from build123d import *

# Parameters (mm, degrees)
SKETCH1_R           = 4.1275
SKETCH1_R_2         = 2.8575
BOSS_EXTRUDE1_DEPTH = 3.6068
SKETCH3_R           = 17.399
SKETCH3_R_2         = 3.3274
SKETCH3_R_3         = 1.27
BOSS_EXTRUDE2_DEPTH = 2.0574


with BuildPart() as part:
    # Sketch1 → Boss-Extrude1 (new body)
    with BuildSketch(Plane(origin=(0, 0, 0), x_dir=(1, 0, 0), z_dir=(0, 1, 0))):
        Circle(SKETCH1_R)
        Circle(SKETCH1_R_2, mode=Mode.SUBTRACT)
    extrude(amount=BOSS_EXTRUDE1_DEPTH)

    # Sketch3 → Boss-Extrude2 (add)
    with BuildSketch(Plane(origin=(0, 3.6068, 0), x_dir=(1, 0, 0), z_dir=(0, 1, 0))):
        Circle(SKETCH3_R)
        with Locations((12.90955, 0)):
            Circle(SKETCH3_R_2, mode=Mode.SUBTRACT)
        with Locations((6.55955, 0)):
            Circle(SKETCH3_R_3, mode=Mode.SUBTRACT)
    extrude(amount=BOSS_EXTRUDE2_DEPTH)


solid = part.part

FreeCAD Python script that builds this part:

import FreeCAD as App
import Part
import Sketcher
from FreeCAD import Vector
Q = App.Units.Quantity

doc = App.newDocument("Part")
params = doc.addObject("Spreadsheet::Sheet", "Params")
for row, (alias, value) in enumerate([
    ("sketch1_diameter", "0.325 in"),
    ("sketch1_diameter2", "0.225 in"),
    ("pad1_length", "0.142 in"),
    ("sketch2_diameter", "0.1 in"),
    ("sketch2_diameter2", "1.37 in"),
    ("sketch2_diameter3", "0.262 in"),
    ("pad2_length", "0.081 in"),
], start=1):
    params.set(f"A{row}", alias)
    params.set(f"B{row}", "=" + value)
    params.setAlias(f"B{row}", alias)

body = doc.addObject("PartDesign::Body", "Body")

# Sketch on XZ plane
sketch1 = body.newObject("Sketcher::SketchObject", "Sketch")
sketch1.AttachmentSupport = (doc.getObject("XZ_Plane"), [""])
sketch1.MapMode = "FlatFace"
sketch1.addGeometry([
    Part.Circle(Vector(0, 0, 0), Vector(0, 0, 1), 4.1),
    Part.Circle(Vector(0, 0, 0), Vector(0, 0, 1), 2.9),
], False)
sketch1.addConstraint([
    Sketcher.Constraint("Coincident", 0, 3, -1, 1),
    Sketcher.Constraint("Coincident", 1, 3, -1, 1),
    Sketcher.Constraint("Diameter", 0, Q("0.325 in")),
    Sketcher.Constraint("Diameter", 1, Q("0.225 in")),
])
sketch1.setExpression("Constraints[2]", "Params.sketch1_diameter")
sketch1.setExpression("Constraints[3]", "Params.sketch1_diameter2")
pad1 = body.newObject("PartDesign::Pad", "Pad")
pad1.Profile = sketch1
pad1.setExpression("Length", "Params.pad1_length")
pad1.Reversed = True

# Sketch on XZ plane
sketch2 = body.newObject("Sketcher::SketchObject", "Sketch001")
sketch2.AttachmentSupport = (doc.getObject("XZ_Plane"), [""])
sketch2.MapMode = "FlatFace"
sketch2.AttachmentOffset = App.Placement(Vector(0, 0, -0.142 * 25.4), App.Rotation())
sketch2.addGeometry([
    Part.Circle(Vector(0, 0, 0), Vector(0, 0, 1), 17.4),
    Part.Circle(Vector(6.6, 0, 0), Vector(0, 0, 1), 1.3),
    Part.Circle(Vector(12.9, 0, 0), Vector(0, 0, 1), 3.3),
], False)
sketch2.addConstraint([
    Sketcher.Constraint("Coincident", 0, 3, -1, 1),
    Sketcher.Constraint("PointOnObject", 1, 3, -1),
    Sketcher.Constraint("PointOnObject", 2, 3, -1),
    Sketcher.Constraint("Diameter", 1, Q("0.1 in")),
    Sketcher.Constraint("Diameter", 0, Q("1.37 in")),
    Sketcher.Constraint("Diameter", 2, Q("0.262 in")),
    Sketcher.Constraint("DistanceX", 1, 3, 2, 3, Q("0.25 in")),
    Sketcher.Constraint("DistanceX", -1, 1, 1, 3, 6.55955),
])
sketch2.setExpression("Constraints[3]", "Params.sketch2_diameter")
sketch2.setExpression("Constraints[4]", "Params.sketch2_diameter2")
sketch2.setExpression("Constraints[5]", "Params.sketch2_diameter3")
pad2 = body.newObject("PartDesign::Pad", "Pad001")
pad2.Profile = sketch2
pad2.setExpression("Length", "Params.pad2_length")
pad2.Reversed = True

doc.recompute()
